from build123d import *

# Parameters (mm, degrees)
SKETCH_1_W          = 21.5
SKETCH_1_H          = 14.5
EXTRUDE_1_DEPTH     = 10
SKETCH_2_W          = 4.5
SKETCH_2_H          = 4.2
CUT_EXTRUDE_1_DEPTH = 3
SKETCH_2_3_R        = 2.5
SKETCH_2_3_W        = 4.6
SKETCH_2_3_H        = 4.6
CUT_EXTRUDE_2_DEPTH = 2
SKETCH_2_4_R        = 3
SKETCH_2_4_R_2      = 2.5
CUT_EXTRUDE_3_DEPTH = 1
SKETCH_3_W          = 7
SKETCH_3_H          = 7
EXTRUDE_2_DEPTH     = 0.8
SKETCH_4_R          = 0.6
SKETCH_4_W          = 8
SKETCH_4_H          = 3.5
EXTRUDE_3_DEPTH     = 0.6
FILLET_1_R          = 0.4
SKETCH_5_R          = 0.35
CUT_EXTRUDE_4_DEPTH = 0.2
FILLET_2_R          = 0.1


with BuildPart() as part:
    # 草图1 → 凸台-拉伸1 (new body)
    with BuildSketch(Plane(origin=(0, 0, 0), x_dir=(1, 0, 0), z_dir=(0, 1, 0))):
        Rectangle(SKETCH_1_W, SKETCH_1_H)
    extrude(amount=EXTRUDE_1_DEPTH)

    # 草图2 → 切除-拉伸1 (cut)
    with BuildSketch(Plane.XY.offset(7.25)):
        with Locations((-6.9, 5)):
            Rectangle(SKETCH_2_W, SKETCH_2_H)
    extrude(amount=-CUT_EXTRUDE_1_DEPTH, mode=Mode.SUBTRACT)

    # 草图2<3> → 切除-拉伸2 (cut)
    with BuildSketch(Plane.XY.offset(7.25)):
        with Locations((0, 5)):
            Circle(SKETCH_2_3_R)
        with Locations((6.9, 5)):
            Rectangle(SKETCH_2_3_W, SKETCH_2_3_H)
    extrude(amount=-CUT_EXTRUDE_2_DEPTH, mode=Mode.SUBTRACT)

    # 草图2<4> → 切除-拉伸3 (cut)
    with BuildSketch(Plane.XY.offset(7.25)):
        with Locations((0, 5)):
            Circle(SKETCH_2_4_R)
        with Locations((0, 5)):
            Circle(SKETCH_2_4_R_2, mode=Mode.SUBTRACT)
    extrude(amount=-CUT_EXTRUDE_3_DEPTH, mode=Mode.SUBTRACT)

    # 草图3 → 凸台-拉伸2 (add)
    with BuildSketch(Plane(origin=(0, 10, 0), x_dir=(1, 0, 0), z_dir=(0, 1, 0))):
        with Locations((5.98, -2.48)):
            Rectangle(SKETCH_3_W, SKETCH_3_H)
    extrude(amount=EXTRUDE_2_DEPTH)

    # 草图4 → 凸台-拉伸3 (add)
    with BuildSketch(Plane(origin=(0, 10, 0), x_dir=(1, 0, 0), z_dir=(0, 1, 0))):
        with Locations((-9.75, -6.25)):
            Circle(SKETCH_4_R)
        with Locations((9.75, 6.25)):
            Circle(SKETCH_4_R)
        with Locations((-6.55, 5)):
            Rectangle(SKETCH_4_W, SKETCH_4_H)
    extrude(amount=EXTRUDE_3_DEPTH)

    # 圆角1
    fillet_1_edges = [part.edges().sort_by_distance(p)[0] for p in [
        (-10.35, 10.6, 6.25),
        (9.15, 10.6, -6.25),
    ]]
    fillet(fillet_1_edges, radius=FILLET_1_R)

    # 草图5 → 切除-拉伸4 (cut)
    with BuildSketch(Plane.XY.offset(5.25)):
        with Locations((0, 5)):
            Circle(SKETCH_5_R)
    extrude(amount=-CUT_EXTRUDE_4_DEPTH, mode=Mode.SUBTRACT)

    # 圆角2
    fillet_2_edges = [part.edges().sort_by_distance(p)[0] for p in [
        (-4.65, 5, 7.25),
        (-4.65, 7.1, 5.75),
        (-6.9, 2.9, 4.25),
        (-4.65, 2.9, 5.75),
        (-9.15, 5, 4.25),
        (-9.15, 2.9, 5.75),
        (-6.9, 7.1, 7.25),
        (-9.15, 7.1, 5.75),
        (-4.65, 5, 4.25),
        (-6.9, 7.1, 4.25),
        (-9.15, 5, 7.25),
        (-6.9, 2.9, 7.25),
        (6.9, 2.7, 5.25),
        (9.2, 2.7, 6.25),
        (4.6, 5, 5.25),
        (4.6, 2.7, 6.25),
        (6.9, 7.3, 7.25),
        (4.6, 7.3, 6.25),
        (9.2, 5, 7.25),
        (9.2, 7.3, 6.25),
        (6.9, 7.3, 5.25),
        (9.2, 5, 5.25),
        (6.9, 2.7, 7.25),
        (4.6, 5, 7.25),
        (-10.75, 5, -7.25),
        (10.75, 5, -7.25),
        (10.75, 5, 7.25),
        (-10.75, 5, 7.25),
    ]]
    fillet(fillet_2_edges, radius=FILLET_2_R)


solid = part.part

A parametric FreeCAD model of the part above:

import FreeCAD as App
import Part
import Sketcher


def edges_at(feature, points):
    """Names of the edges that pass closest to the given points."""
    edges = feature.Shape.Edges
    near = lambda p: min(range(len(edges)), key=lambda i: edges[i].distToShape(Part.Vertex(*p))[0])
    return sorted({f"Edge{near(p) + 1}" for p in points})

doc = App.newDocument("Part")
params = doc.addObject("Spreadsheet::Sheet", "Params")
for row, (alias, value) in enumerate([
    ("sketch1_width", "21.5 mm"),
    ("sketch1_height", "14.5 mm"),
    ("pad1_length", "10 mm"),
    ("sketch2_width", "4.5 mm"),
    ("sketch2_height", "4.2 mm"),
    ("pocket1_length", "3 mm"),
    ("sketch3_diameter", "5 mm"),
    ("sketch3_width", "4.6 mm"),
    ("pocket2_length", "2 mm"),
    ("sketch4_diameter", "6 mm"),
    ("sketch4_diameter2", "5 mm"),
    ("pocket3_length", "1 mm"),
    ("sketch5_width", "7 mm"),
    ("pad2_length", "0.8 mm"),
    ("sketch6_diameter", "1.2 mm"),
    ("sketch6_width", "8 mm"),
    ("sketch6_height", "3.5 mm"),
    ("pad3_length", "0.6 mm"),
    ("fillet_radius", "0.4 mm"),
    ("sketch7_diameter", "0.7 mm"),
    ("pocket4_length", "0.2 mm"),
    ("fillet2_radius", "0.1 mm"),
], start=1):
    params.set(f"A{row}", alias)
    params.set(f"B{row}", "=" + value)
    params.setAlias(f"B{row}", alias)

body = doc.addObject("PartDesign::Body", "Body")

# Sketch on XZ plane
sketch1 = body.newObject("Sketcher::SketchObject", "Sketch")
sketch1.AttachmentSupport = (doc.getObject("XZ_Plane"), [""])
sketch1.MapMode = "FlatFace"
sketch1.addGeometry([
    Part.LineSegment(App.Vector(-11, -7, 0), App.Vector(-11, 7, 0)),
    Part.LineSegment(App.Vector(-11, 7, 0), App.Vector(11, 7, 0)),
    Part.LineSegment(App.Vector(11, 7, 0), App.Vector(11, -7, 0)),
    Part.LineSegment(App.Vector(11, -7, 0), App.Vector(-11, -7, 0)),
], False)
sketch1.addConstraint([
    Sketcher.Constraint("Coincident", 0, 2, 1, 1),
    Sketcher.Constraint("Coincident", 1, 2, 2, 1),
    Sketcher.Constraint("Coincident", 2, 2, 3, 1),
    Sketcher.Constraint("Coincident", 3, 2, 0, 1),
    Sketcher.Constraint("Vertical", 0),
    Sketcher.Constraint("Horizontal", 1),
    Sketcher.Constraint("Vertical", 2),
    Sketcher.Constraint("Horizontal", 3),
    Sketcher.Constraint("Symmetric", 0, 2, 2, 2, -1, 1),
    Sketcher.Constraint("DistanceX", 1, 1, 1, 2, 21.5),
    Sketcher.Constraint("DistanceY", 0, 1, 0, 2, 14.5),
])
sketch1.setExpression("Constraints[9]", "Params.sketch1_width")
sketch1.setExpression("Constraints[10]", "Params.sketch1_height")
pad1 = body.newObject("PartDesign::Pad", "Pad")
pad1.Profile = sketch1
pad1.setExpression("Length", "Params.pad1_length")
pad1.Reversed = True

# Sketch on XY plane
sketch2 = body.newObject("Sketcher::SketchObject", "Sketch001")
sketch2.AttachmentSupport = (doc.getObject("XY_Plane"), [""])
sketch2.MapMode = "FlatFace"
sketch2.AttachmentOffset = App.Placement(App.Vector(0, 0, 7.25), App.Rotation())
sketch2.addGeometry([
    Part.LineSegment(App.Vector(-9.2, 7.1, 0), App.Vector(-9.2, 2.9, 0)),
    Part.LineSegment(App.Vector(-9.2, 2.9, 0), App.Vector(-4.7, 2.9, 0)),
    Part.LineSegment(App.Vector(-4.7, 2.9, 0), App.Vector(-4.7, 7.1, 0)),
    Part.LineSegment(App.Vector(-4.7, 7.1, 0), App.Vector(-9.2, 7.1, 0)),
], False)
sketch2.addConstraint([
    Sketcher.Constraint("Coincident", 0, 2, 1, 1),
    Sketcher.Constraint("Coincident", 1, 2, 2, 1),
    Sketcher.Constraint("Coincident", 2, 2, 3, 1),
    Sketcher.Constraint("Coincident", 3, 2, 0, 1),
    Sketcher.Constraint("Vertical", 0),
    Sketcher.Constraint("Horizontal", 1),
    Sketcher.Constraint("Vertical", 2),
    Sketcher.Constraint("Horizontal", 3),
    Sketcher.Constraint("DistanceX", 1, 1, 1, 2, 4.5),
    Sketcher.Constraint("DistanceY", 0, 2, 0, 1, 4.2),
    Sketcher.Constraint("DistanceY", -1, 1, 0, 2, 2.9),
    Sketcher.Constraint("DistanceX", 0, 2, -1, 1, 9.15),
])
sketch2.setExpression("Constraints[8]", "Params.sketch2_width")
sketch2.setExpression("Constraints[9]", "Params.sketch2_height")
pocket1 = body.newObject("PartDesign::Pocket", "Pocket")
pocket1.Profile = sketch2
pocket1.setExpression("Length", "Params.pocket1_length")

# Sketch on XY plane
sketch3 = body.newObject("Sketcher::SketchObject", "Sketch002")
sketch3.AttachmentSupport = (doc.getObject("XY_Plane"), [""])
sketch3.MapMode = "FlatFace"
sketch3.AttachmentOffset = App.Placement(App.Vector(0, 0, 7.25), App.Rotation())
sketch3.addGeometry([
    Part.Circle(App.Vector(0, 5, 0), App.Vector(0, 0, 1), 2.5),  # 0
    Part.LineSegment(App.Vector(4.6, 7.3, 0), App.Vector(4.6, 2.7, 0)),  # 1
    Part.LineSegment(App.Vector(4.6, 2.7, 0), App.Vector(9.2, 2.7, 0)),  # 2
    Part.LineSegment(App.Vector(9.2, 2.7, 0), App.Vector(9.2, 7.3, 0)),  # 3
    Part.LineSegment(App.Vector(9.2, 7.3, 0), App.Vector(4.6, 7.3, 0)),  # 4
], False)
sketch3.addConstraint([
    Sketcher.Constraint("Coincident", 1, 2, 2, 1),
    Sketcher.Constraint("Coincident", 2, 2, 3, 1),
    Sketcher.Constraint("Coincident", 3, 2, 4, 1),
    Sketcher.Constraint("Coincident", 4, 2, 1, 1),
    Sketcher.Constraint("Vertical", 1),
    Sketcher.Constraint("Horizontal", 2),
    Sketcher.Constraint("Vertical", 3),
    Sketcher.Constraint("Horizontal", 4),
    Sketcher.Constraint("PointOnObject", 0, 3, -2),
    Sketcher.Constraint("Equal", 4, 1),
    Sketcher.Constraint("Diameter", 0, 5.0),
    Sketcher.Constraint("DistanceX", 2, 1, 2, 2, 4.6),
    Sketcher.Constraint("DistanceY", -1, 1, 0, 3, 5.0),
    Sketcher.Constraint("DistanceX", -1, 1, 1, 2, 4.6),
    Sketcher.Constraint("DistanceY", -1, 1, 1, 2, 2.7),
])
sketch3.setExpression("Constraints[10]", "Params.sketch3_diameter")
sketch3.setExpression("Constraints[11]", "Params.sketch3_width")
pocket2 = body.newObject("PartDesign::Pocket", "Pocket001")
pocket2.Profile = sketch3
pocket2.setExpression("Length", "Params.pocket2_length")

# Sketch on XY plane
sketch4 = body.newObject("Sketcher::SketchObject", "Sketch003")
sketch4.AttachmentSupport = (doc.getObject("XY_Plane"), [""])
sketch4.MapMode = "FlatFace"
sketch4.AttachmentOffset = App.Placement(App.Vector(0, 0, 7.25), App.Rotation())
sketch4.addGeometry([
    Part.Circle(App.Vector(0, 5, 0), App.Vector(0, 0, 1), 3),
    Part.Circle(App.Vector(0, 5, 0), App.Vector(0, 0, 1), 2.5),
], False)
sketch4.addConstraint([
    Sketcher.Constraint("Coincident", 1, 3, 0, 3),
    Sketcher.Constraint("PointOnObject", 0, 3, -2),
    Sketcher.Constraint("Diameter", 0, 6.0),
    Sketcher.Constraint("Diameter", 1, 5.0),
    Sketcher.Constraint("DistanceY", -1, 1, 0, 3, 5.0),
])
sketch4.setExpression("Constraints[2]", "Params.sketch4_diameter")
sketch4.setExpression("Constraints[3]", "Params.sketch4_diameter2")
pocket3 = body.newObject("PartDesign::Pocket", "Pocket002")
pocket3.Profile = sketch4
pocket3.setExpression("Length", "Params.pocket3_length")

# Sketch on XZ plane
sketch5 = body.newObject("Sketcher::SketchObject", "Sketch004")
sketch5.AttachmentSupport = (doc.getObject("XZ_Plane"), [""])
sketch5.MapMode = "FlatFace"
sketch5.AttachmentOffset = App.Placement(App.Vector(0, 0, -10), App.Rotation())
sketch5.addGeometry([
    Part.LineSegment(App.Vector(2, -1, 0), App.Vector(2, 6, 0)),
    Part.LineSegment(App.Vector(2, 6, 0), App.Vector(9, 6, 0)),
    Part.LineSegment(App.Vector(9, 6, 0), App.Vector(9, -1, 0)),
    Part.LineSegment(App.Vector(9, -1, 0), App.Vector(2, -1, 0)),
], False)
sketch5.addConstraint([
    Sketcher.Constraint("Coincident", 0, 2, 1, 1),
    Sketcher.Constraint("Coincident", 1, 2, 2, 1),
    Sketcher.Constraint("Coincident", 2, 2, 3, 1),
    Sketcher.Constraint("Coincident", 3, 2, 0, 1),
    Sketcher.Constraint("Vertical", 0),
    Sketcher.Constraint("Horizontal", 1),
    Sketcher.Constraint("Vertical", 2),
    Sketcher.Constraint("Horizontal", 3),
    Sketcher.Constraint("Equal", 3, 0),
    Sketcher.Constraint("DistanceX", 1, 1, 1, 2, 7.0),
    Sketcher.Constraint("DistanceX", -1, 1, 0, 2, 2.48),
    Sketcher.Constraint("DistanceY", -1, 1, 0, 2, 5.98),
])
sketch5.setExpression("Constraints[9]", "Params.sketch5_width")
pad2 = body.newObject("PartDesign::Pad", "Pad001")
pad2.Profile = sketch5
pad2.setExpression("Length", "Params.pad2_length")
pad2.Reversed = True

# Sketch on XZ plane
sketch6 = body.newObject("Sketcher::SketchObject", "Sketch005")
sketch6.AttachmentSupport = (doc.getObject("XZ_Plane"), [""])
sketch6.MapMode = "FlatFace"
sketch6.AttachmentOffset = App.Placement(App.Vector(0, 0, -10), App.Rotation())
sketch6.addGeometry([
    Part.Circle(App.Vector(-9.8, 6.2, 0), App.Vector(0, 0, 1), 0.6),  # 0
    Part.Circle(App.Vector(9.8, -6.2, 0), App.Vector(0, 0, 1), 0.6),  # 1
    Part.LineSegment(App.Vector(-10.6, -6.8, 0), App.Vector(-10.6, -3.2, 0)),  # 2
    Part.LineSegment(App.Vector(-10.6, -3.2, 0), App.Vector(-2.5, -3.2, 0)),  # 3
    Part.LineSegment(App.Vector(-2.5, -3.2, 0), App.Vector(-2.5, -6.8, 0)),  # 4
    Part.LineSegment(App.Vector(-2.5, -6.8, 0), App.Vector(-10.6, -6.8, 0)),  # 5
], False)
sketch6.addConstraint([
    Sketcher.Constraint("Coincident", 2, 2, 3, 1),
    Sketcher.Constraint("Coincident", 3, 2, 4, 1),
    Sketcher.Constraint("Coincident", 4, 2, 5, 1),
    Sketcher.Constraint("Coincident", 5, 2, 2, 1),
    Sketcher.Constraint("Vertical", 2),
    Sketcher.Constraint("Horizontal", 3),
    Sketcher.Constraint("Vertical", 4),
    Sketcher.Constraint("Horizontal", 5),
    Sketcher.Constraint("Equal", 0, 1),
    Sketcher.Constraint("Symmetric", 0, 3, 1, 3, -1, 1),
    Sketcher.Constraint("Diameter", 0, 1.2),
    Sketcher.Constraint("DistanceX", 3, 1, 3, 2, 8.0),
    Sketcher.Constraint("DistanceY", 2, 1, 2, 2, 3.5),
    Sketcher.Constraint("DistanceY", 1, 3, 2, 2, 3.0),
    Sketcher.Constraint("DistanceY", 4, 2, 0, 3, 13.0),
    Sketcher.Constraint("DistanceX", 0, 3, 1, 3, 19.5),
    Sketcher.Constraint("DistanceX", 2, 2, 0, 3, 0.8),
])
sketch6.setExpression("Constraints[10]", "Params.sketch6_diameter")
sketch6.setExpression("Constraints[11]", "Params.sketch6_width")
sketch6.setExpression("Constraints[12]", "Params.sketch6_height")
pad3 = body.newObject("PartDesign::Pad", "Pad002")
pad3.Profile = sketch6
pad3.setExpression("Length", "Params.pad3_length")
pad3.Reversed = True
doc.recompute()

fillet = body.newObject("PartDesign::Fillet", "Fillet")
fillet.Base = (pad3, edges_at(pad3, [(-10.35, 10.6, 6.25), (9.15, 10.6, -6.25)]))
fillet.setExpression("Radius", "Params.fillet_radius")

# Sketch on XY plane
sketch7 = body.newObject("Sketcher::SketchObject", "Sketch006")
sketch7.AttachmentSupport = (doc.getObject("XY_Plane"), [""])
sketch7.MapMode = "FlatFace"
sketch7.AttachmentOffset = App.Placement(App.Vector(0, 0, 5.25), App.Rotation())
sketch7.addGeometry(Part.Circle(App.Vector(0, 5, 0), App.Vector(0, 0, 1), 0.35), False)
sketch7.addConstraint([
    Sketcher.Constraint("PointOnObject", 0, 3, -2),
    Sketcher.Constraint("Diameter", 0, 0.7),
    Sketcher.Constraint("DistanceY", -1, 1, 0, 3, 5.0),
])
sketch7.setExpression("Constraints[1]", "Params.sketch7_diameter")
pocket4 = body.newObject("PartDesign::Pocket", "Pocket003")
pocket4.Profile = sketch7
pocket4.setExpression("Length", "Params.pocket4_length")
doc.recompute()

fillet2 = body.newObject("PartDesign::Fillet", "Fillet001")
fillet2.Base = (pocket4, edges_at(pocket4, [
    (-4.65, 5, 7.25),
    (-4.65, 7.1, 5.75),
    (-6.9, 2.9, 4.25),
    (-4.65, 2.9, 5.75),
    (-9.15, 5, 4.25),
    (-9.15, 2.9, 5.75),
    (-6.9, 7.1, 7.25),
    (-9.15, 7.1, 5.75),
    (-4.65, 5, 4.25),
    (-6.9, 7.1, 4.25),
    (-9.15, 5, 7.25),
    (-6.9, 2.9, 7.25),
    (6.9, 2.7, 5.25),
    (9.2, 2.7, 6.25),
    (4.6, 5, 5.25),
    (4.6, 2.7, 6.25),
    (6.9, 7.3, 7.25),
    (4.6, 7.3, 6.25),
    (9.2, 5, 7.25),
    (9.2, 7.3, 6.25),
    (6.9, 7.3, 5.25),
    (9.2, 5, 5.25),
    (6.9, 2.7, 7.25),
    (4.6, 5, 7.25),
    (-10.75, 5, -7.25),
    (10.75, 5, -7.25),
    (10.75, 5, 7.25),
    (-10.75, 5, 7.25),
]))
fillet2.setExpression("Radius", "Params.fillet2_radius")

doc.recompute()
